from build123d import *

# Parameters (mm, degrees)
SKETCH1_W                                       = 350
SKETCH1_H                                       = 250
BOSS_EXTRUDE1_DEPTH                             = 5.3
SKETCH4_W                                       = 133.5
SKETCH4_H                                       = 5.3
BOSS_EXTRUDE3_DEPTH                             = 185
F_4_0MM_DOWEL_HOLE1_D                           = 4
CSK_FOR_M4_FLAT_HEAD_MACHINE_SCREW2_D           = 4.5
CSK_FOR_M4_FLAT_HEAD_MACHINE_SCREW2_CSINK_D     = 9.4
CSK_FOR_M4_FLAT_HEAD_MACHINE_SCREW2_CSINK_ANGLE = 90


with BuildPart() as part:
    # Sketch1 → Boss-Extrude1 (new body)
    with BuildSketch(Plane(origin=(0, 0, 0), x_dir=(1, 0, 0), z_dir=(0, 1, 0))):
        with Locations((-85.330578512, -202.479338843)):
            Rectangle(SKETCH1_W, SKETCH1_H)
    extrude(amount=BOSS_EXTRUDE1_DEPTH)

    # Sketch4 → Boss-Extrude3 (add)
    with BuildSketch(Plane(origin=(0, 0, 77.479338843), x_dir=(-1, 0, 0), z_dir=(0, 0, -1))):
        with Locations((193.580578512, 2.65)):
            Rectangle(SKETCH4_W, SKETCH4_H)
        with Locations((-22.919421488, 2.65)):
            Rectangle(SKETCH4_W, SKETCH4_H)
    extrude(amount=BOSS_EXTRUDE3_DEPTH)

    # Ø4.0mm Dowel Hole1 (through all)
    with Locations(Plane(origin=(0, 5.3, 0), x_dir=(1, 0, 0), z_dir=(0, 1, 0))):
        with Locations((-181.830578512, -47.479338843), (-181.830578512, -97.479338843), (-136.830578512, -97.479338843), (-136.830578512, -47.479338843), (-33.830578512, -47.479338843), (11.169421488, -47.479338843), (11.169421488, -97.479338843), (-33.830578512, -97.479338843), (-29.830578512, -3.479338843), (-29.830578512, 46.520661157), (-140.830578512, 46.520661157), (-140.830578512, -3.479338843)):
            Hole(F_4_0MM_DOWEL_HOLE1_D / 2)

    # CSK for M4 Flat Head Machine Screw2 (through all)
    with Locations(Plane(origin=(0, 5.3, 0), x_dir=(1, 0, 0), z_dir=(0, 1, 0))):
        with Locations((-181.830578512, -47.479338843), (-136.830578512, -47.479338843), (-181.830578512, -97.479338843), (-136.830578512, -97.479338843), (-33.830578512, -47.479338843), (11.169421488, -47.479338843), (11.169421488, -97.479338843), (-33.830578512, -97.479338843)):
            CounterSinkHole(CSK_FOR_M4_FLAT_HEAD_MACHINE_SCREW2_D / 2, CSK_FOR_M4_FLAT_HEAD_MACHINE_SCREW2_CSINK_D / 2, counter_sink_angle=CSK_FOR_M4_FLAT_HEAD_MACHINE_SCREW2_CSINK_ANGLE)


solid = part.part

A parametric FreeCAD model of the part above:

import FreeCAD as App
import Part
import Sketcher

V = App.Vector

doc = App.newDocument("Part")
body = doc.addObject("PartDesign::Body", "Body")

sketch1 = body.newObject("Sketcher::SketchObject", "Sketch")
sketch1.AttachmentSupport = (doc.getObject("XZ_Plane"), [""])
sketch1.MapMode = "FlatFace"
sketch1.addGeometry(Part.LineSegment(V(-260, 77, 0), V(-260, 327, 0)), False)
sketch1.addGeometry(Part.LineSegment(V(-260, 327, 0), V(90, 327, 0)), False)
sketch1.addGeometry(Part.LineSegment(V(90, 327, 0), V(90, 77, 0)), False)
sketch1.addGeometry(Part.LineSegment(V(90, 77, 0), V(-260, 77, 0)), False)
sketch1.addConstraint(Sketcher.Constraint("Coincident", 0, 2, 1, 1))
sketch1.addConstraint(Sketcher.Constraint("Coincident", 1, 2, 2, 1))
sketch1.addConstraint(Sketcher.Constraint("Coincident", 2, 2, 3, 1))
sketch1.addConstraint(Sketcher.Constraint("Coincident", 3, 2, 0, 1))
sketch1.addConstraint(Sketcher.Constraint("Vertical", 0))
sketch1.addConstraint(Sketcher.Constraint("Horizontal", 1))
sketch1.addConstraint(Sketcher.Constraint("Vertical", 2))
sketch1.addConstraint(Sketcher.Constraint("Horizontal", 3))
sketch1.addConstraint(Sketcher.Constraint("DistanceX", 1, 1, 1, 2, 350.0))
sketch1.addConstraint(Sketcher.Constraint("DistanceY", 0, 1, 0, 2, 250.0))
sketch1.addConstraint(Sketcher.Constraint("DistanceX", 0, 2, -1, 1, 260.330579))
sketch1.addConstraint(Sketcher.Constraint("DistanceY", -1, 1, 0, 2, 327.479339))
pad1 = body.newObject("PartDesign::Pad", "Pad")
pad1.Profile = sketch1
pad1.Length = 5.3
pad1.Reversed = True

sketch2 = body.newObject("Sketcher::SketchObject", "Sketch001")
sketch2.AttachmentSupport = (doc.getObject("XY_Plane"), [""])
sketch2.MapMode = "FlatFace"
sketch2.AttachmentOffset = App.Placement(V(0, 0, 77.479339), App.Rotation())
sketch2.addGeometry(Part.LineSegment(V(-127, 5, 0), V(-127, 0, 0)), False)
sketch2.addGeometry(Part.LineSegment(V(-127, 0, 0), V(-260, 0, 0)), False)
sketch2.addGeometry(Part.LineSegment(V(-260, 0, 0), V(-260, 5, 0)), False)
sketch2.addGeometry(Part.LineSegment(V(-260, 5, 0), V(-127, 5, 0)), False)
sketch2.addGeometry(Part.LineSegment(V(90, 5, 0), V(90, 0, 0)), False)
sketch2.addGeometry(Part.LineSegment(V(90, 0, 0), V(-44, 0, 0)), False)
sketch2.addGeometry(Part.LineSegment(V(-44, 0, 0), V(-44, 5, 0)), False)
sketch2.addGeometry(Part.LineSegment(V(-44, 5, 0), V(90, 5, 0)), False)
sketch2.addConstraint(Sketcher.Constraint("Coincident", 0, 2, 1, 1))
sketch2.addConstraint(Sketcher.Constraint("Coincident", 1, 2, 2, 1))
sketch2.addConstraint(Sketcher.Constraint("Coincident", 2, 2, 3, 1))
sketch2.addConstraint(Sketcher.Constraint("Coincident", 3, 2, 0, 1))
sketch2.addConstraint(Sketcher.Constraint("Coincident", 4, 2, 5, 1))
sketch2.addConstraint(Sketcher.Constraint("Coincident", 5, 2, 6, 1))
sketch2.addConstraint(Sketcher.Constraint("Coincident", 6, 2, 7, 1))
sketch2.addConstraint(Sketcher.Constraint("Coincident", 7, 2, 4, 1))
sketch2.addConstraint(Sketcher.Constraint("Vertical", 0))
sketch2.addConstraint(Sketcher.Constraint("Horizontal", 1))
sketch2.addConstraint(Sketcher.Constraint("Vertical", 2))
sketch2.addConstraint(Sketcher.Constraint("Horizontal", 3))
sketch2.addConstraint(Sketcher.Constraint("Vertical", 4))
sketch2.addConstraint(Sketcher.Constraint("Horizontal", 5))
sketch2.addConstraint(Sketcher.Constraint("Vertical", 6))
sketch2.addConstraint(Sketcher.Constraint("Horizontal", 7))
sketch2.addConstraint(Sketcher.Constraint("PointOnObject", 0, 2, -1))
sketch2.addConstraint(Sketcher.Constraint("PointOnObject", 4, 2, -1))
sketch2.addConstraint(Sketcher.Constraint("Horizontal", 3, 2, 6, 2))
sketch2.addConstraint(Sketcher.Constraint("Equal", 3, 5))
sketch2.addConstraint(Sketcher.Constraint("DistanceX", 1, 2, 1, 1, 133.5))
sketch2.addConstraint(Sketcher.Constraint("DistanceY", 0, 2, 0, 1, 5.3))
sketch2.addConstraint(Sketcher.Constraint("DistanceX", 1, 2, 4, 2, 350.0))
sketch2.addConstraint(Sketcher.Constraint("DistanceX", 0, 2, -1, 1, 126.830579))
pad2 = body.newObject("PartDesign::Pad", "Pad001")
pad2.Profile = sketch2
pad2.Length = 185
pad2.Reversed = True

sketch3 = body.newObject("Sketcher::SketchObject", "Sketch002")
sketch3.AttachmentSupport = (doc.getObject("XZ_Plane"), [""])
sketch3.MapMode = "FlatFace"
sketch3.AttachmentOffset = App.Placement(V(0, 0, -5.3), App.Rotation())
sketch3.addGeometry(Part.Circle(V(-181.8, 47.5, 0), V(0, 0, 1), 2), False)
sketch3.addGeometry(Part.Circle(V(-181.8, 97.5, 0), V(0, 0, 1), 2), False)
sketch3.addGeometry(Part.Circle(V(-136.8, 97.5, 0), V(0, 0, 1), 2), False)
sketch3.addGeometry(Part.Circle(V(-136.8, 47.5, 0), V(0, 0, 1), 2), False)
sketch3.addGeometry(Part.Circle(V(-33.8, 47.5, 0), V(0, 0, 1), 2), False)
sketch3.addGeometry(Part.Circle(V(11.2, 47.5, 0), V(0, 0, 1), 2), False)
sketch3.addGeometry(Part.Circle(V(11.2, 97.5, 0), V(0, 0, 1), 2), False)
sketch3.addGeometry(Part.Circle(V(-33.8, 97.5, 0), V(0, 0, 1), 2), False)
sketch3.addGeometry(Part.Circle(V(-29.8, 3.5, 0), V(0, 0, 1), 2), False)
sketch3.addGeometry(Part.Circle(V(-29.8, -46.5, 0), V(0, 0, 1), 2), False)
sketch3.addGeometry(Part.Circle(V(-140.8, -46.5, 0), V(0, 0, 1), 2), False)
sketch3.addGeometry(Part.Circle(V(-140.8, 3.5, 0), V(0, 0, 1), 2), False)
sketch3.addConstraint(Sketcher.Constraint("Equal", 0, 1))
sketch3.addConstraint(Sketcher.Constraint("Equal", 1, 2))
sketch3.addConstraint(Sketcher.Constraint("Equal", 2, 3))
sketch3.addConstraint(Sketcher.Constraint("Equal", 3, 4))
sketch3.addConstraint(Sketcher.Constraint("Equal", 4, 5))
sketch3.addConstraint(Sketcher.Constraint("Equal", 5, 6))
sketch3.addConstraint(Sketcher.Constraint("Equal", 6, 7))
sketch3.addConstraint(Sketcher.Constraint("Equal", 7, 8))
sketch3.addConstraint(Sketcher.Constraint("Equal", 8, 9))
sketch3.addConstraint(Sketcher.Constraint("Equal", 9, 10))
sketch3.addConstraint(Sketcher.Constraint("Equal", 10, 11))
sketch3.addConstraint(Sketcher.Constraint("Horizontal", 1, 3, 2, 3))
sketch3.addConstraint(Sketcher.Constraint("Horizontal", 0, 3, 3, 3))
sketch3.addConstraint(Sketcher.Constraint("Horizontal", 3, 3, 4, 3))
sketch3.addConstraint(Sketcher.Constraint("Horizontal", 4, 3, 5, 3))
sketch3.addConstraint(Sketcher.Constraint("Horizontal", 2, 3, 6, 3))
sketch3.addConstraint(Sketcher.Constraint("Horizontal", 6, 3, 7, 3))
sketch3.addConstraint(Sketcher.Constraint("Horizontal", 9, 3, 10, 3))
sketch3.addConstraint(Sketcher.Constraint("Horizontal", 8, 3, 11, 3))
sketch3.addConstraint(Sketcher.Constraint("Vertical", 0, 3, 1, 3))
sketch3.addConstraint(Sketcher.Constraint("Vertical", 2, 3, 3, 3))
sketch3.addConstraint(Sketcher.Constraint("Vertical", 5, 3, 6, 3))
sketch3.addConstraint(Sketcher.Constraint("Vertical", 4, 3, 7, 3))
sketch3.addConstraint(Sketcher.Constraint("Vertical", 8, 3, 9, 3))
sketch3.addConstraint(Sketcher.Constraint("Vertical", 10, 3, 11, 3))
sketch3.addConstraint(Sketcher.Constraint("Diameter", 0, 4.0))
sketch3.addConstraint(Sketcher.Constraint("DistanceY", 0, 3, 1, 3, 50.0))
sketch3.addConstraint(Sketcher.Constraint("DistanceX", 1, 3, 2, 3, 45.0))
sketch3.addConstraint(Sketcher.Constraint("DistanceX", 3, 3, 4, 3, 103.0))
sketch3.addConstraint(Sketcher.Constraint("DistanceX", 4, 3, 5, 3, 45.0))
sketch3.addConstraint(Sketcher.Constraint("DistanceX", 4, 3, 8, 3, 4.0))
sketch3.addConstraint(Sketcher.Constraint("DistanceY", 8, 3, 4, 3, 44.0))
sketch3.addConstraint(Sketcher.Constraint("DistanceY", 9, 3, 8, 3, 50.0))
sketch3.addConstraint(Sketcher.Constraint("DistanceX", 10, 3, 3, 3, 4.0))
sketch3.addConstraint(Sketcher.Constraint("DistanceX", 0, 3, -1, 1, 181.830579))
sketch3.addConstraint(Sketcher.Constraint("DistanceY", -1, 1, 0, 3, 47.479339))
doc.recompute()
hole = body.newObject("PartDesign::Hole", "Hole")
hole.Profile = sketch3
hole.ThreadType = "None"
hole.Diameter = 4
hole.DepthType = "ThroughAll"
hole.Reversed = True

sketch4 = body.newObject("Sketcher::SketchObject", "Sketch003")
sketch4.AttachmentSupport = (doc.getObject("XZ_Plane"), [""])
sketch4.MapMode = "FlatFace"
sketch4.AttachmentOffset = App.Placement(V(0, 0, -5.3), App.Rotation())
sketch4.addGeometry(Part.Circle(V(-181.8, 47.5, 0), V(0, 0, 1), 2.2), False)
sketch4.addGeometry(Part.Circle(V(-136.8, 47.5, 0), V(0, 0, 1), 2.2), False)
sketch4.addGeometry(Part.Circle(V(-181.8, 97.5, 0), V(0, 0, 1), 2.2), False)
sketch4.addGeometry(Part.Circle(V(-136.8, 97.5, 0), V(0, 0, 1), 2.2), False)
sketch4.addGeometry(Part.Circle(V(-33.8, 47.5, 0), V(0, 0, 1), 2.2), False)
sketch4.addGeometry(Part.Circle(V(11.2, 47.5, 0), V(0, 0, 1), 2.2), False)
sketch4.addGeometry(Part.Circle(V(11.2, 97.5, 0), V(0, 0, 1), 2.2), False)
sketch4.addGeometry(Part.Circle(V(-33.8, 97.5, 0), V(0, 0, 1), 2.2), False)
sketch4.addConstraint(Sketcher.Constraint("Equal", 0, 1))
sketch4.addConstraint(Sketcher.Constraint("Equal", 1, 2))
sketch4.addConstraint(Sketcher.Constraint("Equal", 2, 3))
sketch4.addConstraint(Sketcher.Constraint("Equal", 3, 4))
sketch4.addConstraint(Sketcher.Constraint("Equal", 4, 5))
sketch4.addConstraint(Sketcher.Constraint("Equal", 5, 6))
sketch4.addConstraint(Sketcher.Constraint("Equal", 6, 7))
sketch4.addConstraint(Sketcher.Constraint("Horizontal", 0, 3, 1, 3))
sketch4.addConstraint(Sketcher.Constraint("Horizontal", 2, 3, 3, 3))
sketch4.addConstraint(Sketcher.Constraint("Horizontal", 1, 3, 4, 3))
sketch4.addConstraint(Sketcher.Constraint("Horizontal", 4, 3, 5, 3))
sketch4.addConstraint(Sketcher.Constraint("Horizontal", 3, 3, 6, 3))
sketch4.addConstraint(Sketcher.Constraint("Horizontal", 6, 3, 7, 3))
sketch4.addConstraint(Sketcher.Constraint("Vertical", 0, 3, 2, 3))
sketch4.addConstraint(Sketcher.Constraint("Vertical", 1, 3, 3, 3))
sketch4.addConstraint(Sketcher.Constraint("Vertical", 5, 3, 6, 3))
sketch4.addConstraint(Sketcher.Constraint("Vertical", 4, 3, 7, 3))
sketch4.addConstraint(Sketcher.Constraint("Diameter", 0, 4.5))
sketch4.addConstraint(Sketcher.Constraint("DistanceX", 0, 3, 1, 3, 45.0))
sketch4.addConstraint(Sketcher.Constraint("DistanceY", 0, 3, 2, 3, 50.0))
sketch4.addConstraint(Sketcher.Constraint("DistanceX", 1, 3, 4, 3, 103.0))
sketch4.addConstraint(Sketcher.Constraint("DistanceX", 4, 3, 5, 3, 45.0))
sketch4.addConstraint(Sketcher.Constraint("DistanceX", 0, 3, -1, 1, 181.830579))
sketch4.addConstraint(Sketcher.Constraint("DistanceY", -1, 1, 0, 3, 47.479339))
doc.recompute()
hole2 = body.newObject("PartDesign::Hole", "Hole001")
hole2.Profile = sketch4
hole2.ThreadType = "None"
hole2.Diameter = 4.5
hole2.DepthType = "ThroughAll"
hole2.HoleCutType = "Countersink"
hole2.HoleCutDiameter = 9.4
hole2.HoleCutCountersinkAngle = 90
hole2.Reversed = True

doc.recompute()
